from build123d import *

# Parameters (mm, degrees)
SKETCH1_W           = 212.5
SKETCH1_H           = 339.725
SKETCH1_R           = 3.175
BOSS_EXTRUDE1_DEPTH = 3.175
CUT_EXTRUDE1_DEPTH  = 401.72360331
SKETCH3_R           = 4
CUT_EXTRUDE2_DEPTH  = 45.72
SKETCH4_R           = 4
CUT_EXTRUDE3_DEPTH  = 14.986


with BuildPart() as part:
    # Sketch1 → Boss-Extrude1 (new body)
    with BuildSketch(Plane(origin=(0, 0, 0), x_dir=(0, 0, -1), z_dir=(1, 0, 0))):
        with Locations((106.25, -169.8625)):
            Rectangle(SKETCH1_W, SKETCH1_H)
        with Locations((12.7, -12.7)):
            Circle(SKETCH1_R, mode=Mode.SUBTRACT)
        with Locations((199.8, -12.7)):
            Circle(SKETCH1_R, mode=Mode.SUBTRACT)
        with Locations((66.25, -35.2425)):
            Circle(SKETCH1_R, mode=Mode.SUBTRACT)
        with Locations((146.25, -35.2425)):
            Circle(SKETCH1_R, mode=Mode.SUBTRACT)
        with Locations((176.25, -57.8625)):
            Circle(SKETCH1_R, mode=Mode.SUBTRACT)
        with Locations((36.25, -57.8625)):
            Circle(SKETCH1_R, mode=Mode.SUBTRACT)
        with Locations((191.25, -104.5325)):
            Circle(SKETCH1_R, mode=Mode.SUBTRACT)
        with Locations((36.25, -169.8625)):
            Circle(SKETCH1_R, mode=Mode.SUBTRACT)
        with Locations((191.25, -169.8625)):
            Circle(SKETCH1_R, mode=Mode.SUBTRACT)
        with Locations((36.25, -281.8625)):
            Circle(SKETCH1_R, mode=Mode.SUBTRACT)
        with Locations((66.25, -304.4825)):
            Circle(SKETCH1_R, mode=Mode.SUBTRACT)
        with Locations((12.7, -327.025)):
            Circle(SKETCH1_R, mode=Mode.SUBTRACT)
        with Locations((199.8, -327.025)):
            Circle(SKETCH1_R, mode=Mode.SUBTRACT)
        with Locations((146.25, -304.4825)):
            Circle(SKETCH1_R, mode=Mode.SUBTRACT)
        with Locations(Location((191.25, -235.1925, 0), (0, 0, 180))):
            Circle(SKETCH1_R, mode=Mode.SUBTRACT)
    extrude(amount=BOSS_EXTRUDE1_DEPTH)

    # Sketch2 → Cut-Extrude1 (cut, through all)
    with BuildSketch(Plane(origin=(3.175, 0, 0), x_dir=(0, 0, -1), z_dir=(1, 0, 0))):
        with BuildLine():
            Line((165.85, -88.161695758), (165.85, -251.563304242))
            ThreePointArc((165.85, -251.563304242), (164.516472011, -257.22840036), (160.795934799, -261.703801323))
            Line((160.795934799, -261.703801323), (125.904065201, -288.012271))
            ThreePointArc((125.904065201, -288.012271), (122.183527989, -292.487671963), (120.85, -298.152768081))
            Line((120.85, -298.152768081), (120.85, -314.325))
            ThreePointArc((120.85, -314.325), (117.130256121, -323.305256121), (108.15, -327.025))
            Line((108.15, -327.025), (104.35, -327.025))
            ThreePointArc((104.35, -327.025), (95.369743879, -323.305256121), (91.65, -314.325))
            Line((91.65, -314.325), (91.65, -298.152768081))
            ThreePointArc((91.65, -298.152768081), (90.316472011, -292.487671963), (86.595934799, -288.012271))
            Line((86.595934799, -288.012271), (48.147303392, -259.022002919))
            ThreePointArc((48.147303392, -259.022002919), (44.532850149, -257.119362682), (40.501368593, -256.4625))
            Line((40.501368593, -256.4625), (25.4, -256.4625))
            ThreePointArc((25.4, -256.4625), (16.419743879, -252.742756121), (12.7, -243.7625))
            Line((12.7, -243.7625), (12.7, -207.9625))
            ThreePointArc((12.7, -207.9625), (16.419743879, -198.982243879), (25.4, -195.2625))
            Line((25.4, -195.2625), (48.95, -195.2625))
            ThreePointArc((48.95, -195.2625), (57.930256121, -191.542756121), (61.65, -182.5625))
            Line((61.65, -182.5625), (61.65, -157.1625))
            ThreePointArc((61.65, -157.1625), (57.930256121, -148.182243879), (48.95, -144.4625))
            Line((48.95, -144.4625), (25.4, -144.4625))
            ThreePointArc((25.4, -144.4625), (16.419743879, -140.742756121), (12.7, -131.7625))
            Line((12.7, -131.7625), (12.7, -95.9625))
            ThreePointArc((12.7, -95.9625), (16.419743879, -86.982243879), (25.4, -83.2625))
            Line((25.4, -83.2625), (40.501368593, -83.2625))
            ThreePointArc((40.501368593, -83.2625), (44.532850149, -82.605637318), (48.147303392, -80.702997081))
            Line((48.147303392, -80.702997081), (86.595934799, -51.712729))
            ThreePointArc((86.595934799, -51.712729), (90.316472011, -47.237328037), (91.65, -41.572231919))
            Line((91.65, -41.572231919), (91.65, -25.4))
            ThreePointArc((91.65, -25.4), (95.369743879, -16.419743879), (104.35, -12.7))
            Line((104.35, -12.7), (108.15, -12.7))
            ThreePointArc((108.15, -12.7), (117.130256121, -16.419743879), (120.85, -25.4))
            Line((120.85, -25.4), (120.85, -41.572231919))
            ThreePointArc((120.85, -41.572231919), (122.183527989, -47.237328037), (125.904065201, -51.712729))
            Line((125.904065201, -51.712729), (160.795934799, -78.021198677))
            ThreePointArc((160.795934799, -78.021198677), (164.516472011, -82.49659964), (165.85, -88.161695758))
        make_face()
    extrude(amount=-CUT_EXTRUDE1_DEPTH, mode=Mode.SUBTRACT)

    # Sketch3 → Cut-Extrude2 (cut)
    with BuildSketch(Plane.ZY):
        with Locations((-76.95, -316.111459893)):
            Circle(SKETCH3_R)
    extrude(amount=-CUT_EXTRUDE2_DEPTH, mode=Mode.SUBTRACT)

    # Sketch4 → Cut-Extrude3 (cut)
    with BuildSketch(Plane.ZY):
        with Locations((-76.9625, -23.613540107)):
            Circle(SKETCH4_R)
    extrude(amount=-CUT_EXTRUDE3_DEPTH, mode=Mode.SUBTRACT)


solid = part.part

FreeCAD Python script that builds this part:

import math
import FreeCAD as App
import Part
import Sketcher
from FreeCAD import Vector
Q = App.Units.Quantity

doc = App.newDocument("Part")
body = doc.addObject("PartDesign::Body", "Body")

# Sketch on YZ plane
sketch1 = body.newObject("Sketcher::SketchObject", "Sketch")
sketch1.AttachmentSupport = (doc.getObject("YZ_Plane"), [""])
sketch1.MapMode = "FlatFace"
sketch1.addGeometry(Part.LineSegment(Vector(0, 0, 0), Vector(-339.725, 0, 0)), False)
sketch1.addGeometry(Part.LineSegment(Vector(-339.725, 0, 0), Vector(-339.725, -212.5, 0)), False)
sketch1.addGeometry(Part.LineSegment(Vector(-339.725, -212.5, 0), Vector(0, -212.5, 0)), False)
sketch1.addGeometry(Part.LineSegment(Vector(0, -212.5, 0), Vector(0, 0, 0)), False)
sketch1.addGeometry(Part.Circle(Vector(-327.025, -12.7, 0), Vector(0, 0, 1), 3.175), False)
sketch1.addGeometry(Part.Circle(Vector(-281.8625, -36.25, 0), Vector(0, 0, 1), 3.175), False)
sketch1.addGeometry(Part.Circle(Vector(-304.4825, -66.25, 0), Vector(0, 0, 1), 3.175), False)
sketch1.addGeometry(Part.Circle(Vector(-169.8625, -36.25, 0), Vector(0, 0, 1), 3.175), False)
sketch1.addGeometry(Part.Circle(Vector(-304.4825, -146.25, 0), Vector(0, 0, 1), 3.175), False)
sketch1.addGeometry(Part.Circle(Vector(-327.025, -199.8, 0), Vector(0, 0, 1), 3.175), False)
sketch1.addGeometry(Part.Circle(Vector(-235.1925, -191.25, 0), Vector(0, 0, 1), 3.175), False)
sketch1.addGeometry(Part.Circle(Vector(-169.8625, -191.25, 0), Vector(0, 0, 1), 3.175), False)
sketch1.addGeometry(Part.Circle(Vector(-57.8625, -36.25, 0), Vector(0, 0, 1), 3.175), False)
sketch1.addGeometry(Part.Circle(Vector(-12.7, -12.7, 0), Vector(0, 0, 1), 3.175), False)
sketch1.addGeometry(Part.Circle(Vector(-35.2425, -66.25, 0), Vector(0, 0, 1), 3.175), False)
sketch1.addGeometry(Part.Circle(Vector(-104.5325, -191.25, 0), Vector(0, 0, 1), 3.175), False)
sketch1.addGeometry(Part.Circle(Vector(-35.2425, -146.25, 0), Vector(0, 0, 1), 3.175), False)
sketch1.addGeometry(Part.Circle(Vector(-57.8625, -176.25, 0), Vector(0, 0, 1), 3.175), False)
sketch1.addGeometry(Part.Circle(Vector(-12.7, -199.8, 0), Vector(0, 0, 1), 3.175), False)
sketch1.addConstraint(Sketcher.Constraint("Coincident", 0, 2, 1, 1))
sketch1.addConstraint(Sketcher.Constraint("Coincident", 1, 2, 2, 1))
sketch1.addConstraint(Sketcher.Constraint("Coincident", 2, 2, 3, 1))
sketch1.addConstraint(Sketcher.Constraint("Coincident", 3, 2, 0, 1))
sketch1.addConstraint(Sketcher.Constraint("Horizontal", 0))
sketch1.addConstraint(Sketcher.Constraint("Vertical", 1))
sketch1.addConstraint(Sketcher.Constraint("Horizontal", 2))
sketch1.addConstraint(Sketcher.Constraint("Vertical", 3))
sketch1.addConstraint(Sketcher.Constraint("Coincident", 3, 2, -1, 1))
sketch1.addConstraint(Sketcher.Constraint("Equal", 4, 5))
sketch1.addConstraint(Sketcher.Constraint("Equal", 5, 6))
sketch1.addConstraint(Sketcher.Constraint("Equal", 6, 7))
sketch1.addConstraint(Sketcher.Constraint("Equal", 7, 8))
sketch1.addConstraint(Sketcher.Constraint("Equal", 8, 9))
sketch1.addConstraint(Sketcher.Constraint("Equal", 9, 10))
sketch1.addConstraint(Sketcher.Constraint("Equal", 10, 11))
sketch1.addConstraint(Sketcher.Constraint("Equal", 11, 12))
sketch1.addConstraint(Sketcher.Constraint("Equal", 12, 13))
sketch1.addConstraint(Sketcher.Constraint("Equal", 13, 14))
sketch1.addConstraint(Sketcher.Constraint("Equal", 14, 15))
sketch1.addConstraint(Sketcher.Constraint("Equal", 15, 16))
sketch1.addConstraint(Sketcher.Constraint("Equal", 16, 17))
sketch1.addConstraint(Sketcher.Constraint("Equal", 17, 18))
sketch1.addConstraint(Sketcher.Constraint("Horizontal", 5, 3, 7, 3))
sketch1.addConstraint(Sketcher.Constraint("Horizontal", 10, 3, 11, 3))
sketch1.addConstraint(Sketcher.Constraint("Horizontal", 7, 3, 12, 3))
sketch1.addConstraint(Sketcher.Constraint("Horizontal", 4, 3, 13, 3))
sketch1.addConstraint(Sketcher.Constraint("Horizontal", 6, 3, 14, 3))
sketch1.addConstraint(Sketcher.Constraint("Horizontal", 11, 3, 15, 3))
sketch1.addConstraint(Sketcher.Constraint("Horizontal", 8, 3, 16, 3))
sketch1.addConstraint(Sketcher.Constraint("Horizontal", 9, 3, 18, 3))
sketch1.addConstraint(Sketcher.Constraint("Vertical", 6, 3, 8, 3))
sketch1.addConstraint(Sketcher.Constraint("Vertical", 4, 3, 9, 3))
sketch1.addConstraint(Sketcher.Constraint("Vertical", 7, 3, 11, 3))
sketch1.addConstraint(Sketcher.Constraint("Vertical", 14, 3, 16, 3))
sketch1.addConstraint(Sketcher.Constraint("Vertical", 12, 3, 17, 3))
sketch1.addConstraint(Sketcher.Constraint("Vertical", 13, 3, 18, 3))
sketch1.addConstraint(Sketcher.Constraint("Diameter", 4, Q("0.25 in")))
sketch1.addConstraint(Sketcher.Constraint("DistanceY", 4, 3, -1, 1, Q("0.5 in")))
sketch1.addConstraint(Sketcher.Constraint("DistanceX", 13, 3, -1, 1, Q("0.5 in")))
sketch1.addConstraint(Sketcher.Constraint("DistanceX", 6, 3, 7, 3, Q("5.3 in")))
sketch1.addConstraint(Sketcher.Constraint("DistanceX", 7, 3, 14, 3, Q("5.3 in")))
sketch1.addConstraint(Sketcher.Constraint("DistanceX", 0, 2, 4, 3, Q("0.5 in")))
sketch1.addConstraint(Sketcher.Constraint("DistanceY", 1, 2, 9, 3, Q("0.5 in")))
sketch1.addConstraint(Sketcher.Constraint("DistanceX", 0, 2, 0, 1, Q("13.375 in")))
sketch1.addConstraint(Sketcher.Constraint("DistanceX", 7, 3, -1, 1, Q("6.6875 in")))
sketch1.addConstraint(Sketcher.Constraint("DistanceY", 1, 2, 1, 1, 212.5))
sketch1.addConstraint(Sketcher.Constraint("DistanceX", 5, 3, -1, 1, 281.8625))
sketch1.addConstraint(Sketcher.Constraint("DistanceY", 5, 3, -1, 1, 36.25))
sketch1.addConstraint(Sketcher.Constraint("DistanceY", 6, 3, -1, 1, 66.25))
sketch1.addConstraint(Sketcher.Constraint("DistanceY", 8, 3, -1, 1, 146.25))
sketch1.addConstraint(Sketcher.Constraint("DistanceX", 10, 3, -1, 1, 235.1925))
sketch1.addConstraint(Sketcher.Constraint("DistanceY", 10, 3, -1, 1, 191.25))
sketch1.addConstraint(Sketcher.Constraint("DistanceX", 12, 3, -1, 1, 57.8625))
sketch1.addConstraint(Sketcher.Constraint("DistanceX", 15, 3, -1, 1, 104.5325))
sketch1.addConstraint(Sketcher.Constraint("DistanceY", 17, 3, -1, 1, 176.25))
pad1 = body.newObject("PartDesign::Pad", "Pad")
pad1.Profile = sketch1
pad1.Length = Q("0.125 in")

# Sketch on YZ plane
sketch2 = body.newObject("Sketcher::SketchObject", "Sketch001")
sketch2.AttachmentSupport = (doc.getObject("YZ_Plane"), [""])
sketch2.MapMode = "FlatFace"
sketch2.AttachmentOffset = App.Placement(Vector(0, 0, 0.125 * 25.4), App.Rotation())
sketch2.addGeometry(Part.LineSegment(Vector(-251.563304, -165.85, 0), Vector(-88.161696, -165.85, 0)), False)
sketch2.addGeometry(Part.ArcOfCircle(Part.Circle(Vector(-88.161696, -153.15, 0), Vector(0, 0, 1), 12.7), math.radians(-90), math.radians(-37.016293)), False)
sketch2.addGeometry(Part.LineSegment(Vector(-78.021199, -160.795935, 0), Vector(-51.712729, -125.904065, 0)), False)
sketch2.addGeometry(Part.ArcOfCircle(Part.Circle(Vector(-41.572232, -133.55, 0), Vector(0, 0, 1), 12.7), math.radians(90), math.radians(142.983707)), False)
sketch2.addGeometry(Part.LineSegment(Vector(-41.572232, -120.85, 0), Vector(-25.4, -120.85, 0)), False)
sketch2.addGeometry(Part.ArcOfCircle(Part.Circle(Vector(-25.4, -108.15, 0), Vector(0, 0, 1), 12.7), math.radians(-90), math.radians(0)), False)
sketch2.addGeometry(Part.LineSegment(Vector(-12.7, -108.15, 0), Vector(-12.7, -104.35, 0)), False)
sketch2.addGeometry(Part.ArcOfCircle(Part.Circle(Vector(-25.4, -104.35, 0), Vector(0, 0, 1), 12.7), math.radians(0), math.radians(90)), False)
sketch2.addGeometry(Part.LineSegment(Vector(-25.4, -91.65, 0), Vector(-41.572232, -91.65, 0)), False)
sketch2.addGeometry(Part.ArcOfCircle(Part.Circle(Vector(-41.572232, -78.95, 0), Vector(0, 0, 1), 12.7), math.radians(-142.983707), math.radians(-90)), False)
sketch2.addGeometry(Part.LineSegment(Vector(-51.712729, -86.595935, 0), Vector(-80.702997, -48.147303, 0)), False)
sketch2.addGeometry(Part.ArcOfCircle(Part.Circle(Vector(-70.5625, -40.501369, 0), Vector(0, 0, 1), 12.7), math.radians(-180), math.radians(-142.983707)), False)
sketch2.addGeometry(Part.LineSegment(Vector(-83.2625, -40.501369, 0), Vector(-83.2625, -25.4, 0)), False)
sketch2.addGeometry(Part.ArcOfCircle(Part.Circle(Vector(-95.9625, -25.4, 0), Vector(0, 0, 1), 12.7), math.radians(0), math.radians(90)), False)
sketch2.addGeometry(Part.LineSegment(Vector(-95.9625, -12.7, 0), Vector(-131.7625, -12.7, 0)), False)
sketch2.addGeometry(Part.ArcOfCircle(Part.Circle(Vector(-131.7625, -25.4, 0), Vector(0, 0, 1), 12.7), math.radians(90), math.radians(180)), False)
sketch2.addGeometry(Part.LineSegment(Vector(-144.4625, -25.4, 0), Vector(-144.4625, -48.95, 0)), False)
sketch2.addGeometry(Part.ArcOfCircle(Part.Circle(Vector(-157.1625, -48.95, 0), Vector(0, 0, 1), 12.7), math.radians(-90), math.radians(0)), False)
sketch2.addGeometry(Part.LineSegment(Vector(-157.1625, -61.65, 0), Vector(-182.5625, -61.65, 0)), False)
sketch2.addGeometry(Part.ArcOfCircle(Part.Circle(Vector(-182.5625, -48.95, 0), Vector(0, 0, 1), 12.7), math.radians(180), math.radians(270)), False)
sketch2.addGeometry(Part.LineSegment(Vector(-195.2625, -48.95, 0), Vector(-195.2625, -25.4, 0)), False)
sketch2.addGeometry(Part.ArcOfCircle(Part.Circle(Vector(-207.9625, -25.4, 0), Vector(0, 0, 1), 12.7), math.radians(0), math.radians(90)), False)
sketch2.addGeometry(Part.LineSegment(Vector(-207.9625, -12.7, 0), Vector(-243.7625, -12.7, 0)), False)
sketch2.addGeometry(Part.ArcOfCircle(Part.Circle(Vector(-243.7625, -25.4, 0), Vector(0, 0, 1), 12.7), math.radians(90), math.radians(180)), False)
sketch2.addGeometry(Part.LineSegment(Vector(-256.4625, -25.4, 0), Vector(-256.4625, -40.501369, 0)), False)
sketch2.addGeometry(Part.ArcOfCircle(Part.Circle(Vector(-269.1625, -40.501369, 0), Vector(0, 0, 1), 12.7), math.radians(-37.016293), math.radians(0)), False)
sketch2.addGeometry(Part.LineSegment(Vector(-259.022003, -48.147303, 0), Vector(-288.012271, -86.595935, 0)), False)
sketch2.addGeometry(Part.ArcOfCircle(Part.Circle(Vector(-298.152768, -78.95, 0), Vector(0, 0, 1), 12.7), math.radians(-90), math.radians(-37.016293)), False)
sketch2.addGeometry(Part.LineSegment(Vector(-298.152768, -91.65, 0), Vector(-314.325, -91.65, 0)), False)
sketch2.addGeometry(Part.ArcOfCircle(Part.Circle(Vector(-314.325, -104.35, 0), Vector(0, 0, 1), 12.7), math.radians(90), math.radians(180)), False)
sketch2.addGeometry(Part.LineSegment(Vector(-327.025, -104.35, 0), Vector(-327.025, -108.15, 0)), False)
sketch2.addGeometry(Part.ArcOfCircle(Part.Circle(Vector(-314.325, -108.15, 0), Vector(0, 0, 1), 12.7), math.radians(180), math.radians(270)), False)
sketch2.addGeometry(Part.LineSegment(Vector(-314.325, -120.85, 0), Vector(-298.152768, -120.85, 0)), False)
sketch2.addGeometry(Part.ArcOfCircle(Part.Circle(Vector(-298.152768, -133.55, 0), Vector(0, 0, 1), 12.7), math.radians(37.016293), math.radians(90)), False)
sketch2.addGeometry(Part.LineSegment(Vector(-288.012271, -125.904065, 0), Vector(-261.703801, -160.795935, 0)), False)
sketch2.addGeometry(Part.ArcOfCircle(Part.Circle(Vector(-251.563304, -153.15, 0), Vector(0, 0, 1), 12.7), math.radians(-142.983707), math.radians(-90)), False)
sketch2.addConstraint(Sketcher.Constraint("Tangent", 0, 2, 1, 1))
sketch2.addConstraint(Sketcher.Constraint("Tangent", 1, 2, 2, 1))
sketch2.addConstraint(Sketcher.Constraint("Tangent", 2, 2, 3, 2))
sketch2.addConstraint(Sketcher.Constraint("Tangent", 3, 1, 4, 1))
sketch2.addConstraint(Sketcher.Constraint("Tangent", 4, 2, 5, 1))
sketch2.addConstraint(Sketcher.Constraint("Tangent", 5, 2, 6, 1))
sketch2.addConstraint(Sketcher.Constraint("Tangent", 6, 2, 7, 1))
sketch2.addConstraint(Sketcher.Constraint("Tangent", 7, 2, 8, 1))
sketch2.addConstraint(Sketcher.Constraint("Tangent", 8, 2, 9, 2))
sketch2.addConstraint(Sketcher.Constraint("Tangent", 9, 1, 10, 1))
sketch2.addConstraint(Sketcher.Constraint("Tangent", 10, 2, 11, 2))
sketch2.addConstraint(Sketcher.Constraint("Tangent", 11, 1, 12, 1))
sketch2.addConstraint(Sketcher.Constraint("Tangent", 12, 2, 13, 1))
sketch2.addConstraint(Sketcher.Constraint("Tangent", 13, 2, 14, 1))
sketch2.addConstraint(Sketcher.Constraint("Tangent", 14, 2, 15, 1))
sketch2.addConstraint(Sketcher.Constraint("Tangent", 15, 2, 16, 1))
sketch2.addConstraint(Sketcher.Constraint("Tangent", 16, 2, 17, 2))
sketch2.addConstraint(Sketcher.Constraint("Tangent", 17, 1, 18, 1))
sketch2.addConstraint(Sketcher.Constraint("Tangent", 18, 2, 19, 2))
sketch2.addConstraint(Sketcher.Constraint("Tangent", 19, 1, 20, 1))
sketch2.addConstraint(Sketcher.Constraint("Tangent", 20, 2, 21, 1))
sketch2.addConstraint(Sketcher.Constraint("Tangent", 21, 2, 22, 1))
sketch2.addConstraint(Sketcher.Constraint("Tangent", 22, 2, 23, 1))
sketch2.addConstraint(Sketcher.Constraint("Tangent", 23, 2, 24, 1))
sketch2.addConstraint(Sketcher.Constraint("Tangent", 24, 2, 25, 2))
sketch2.addConstraint(Sketcher.Constraint("Tangent", 25, 1, 26, 1))
sketch2.addConstraint(Sketcher.Constraint("Tangent", 26, 2, 27, 2))
sketch2.addConstraint(Sketcher.Constraint("Tangent", 27, 1, 28, 1))
sketch2.addConstraint(Sketcher.Constraint("Tangent", 28, 2, 29, 1))
sketch2.addConstraint(Sketcher.Constraint("Tangent", 29, 2, 30, 1))
sketch2.addConstraint(Sketcher.Constraint("Tangent", 30, 2, 31, 1))
sketch2.addConstraint(Sketcher.Constraint("Tangent", 31, 2, 32, 1))
sketch2.addConstraint(Sketcher.Constraint("Tangent", 32, 2, 33, 2))
sketch2.addConstraint(Sketcher.Constraint("Tangent", 33, 1, 34, 1))
sketch2.addConstraint(Sketcher.Constraint("Tangent", 34, 2, 35, 1))
sketch2.addConstraint(Sketcher.Constraint("Tangent", 35, 2, 0, 1))
sketch2.addConstraint(Sketcher.Constraint("Horizontal", 0))
sketch2.addConstraint(Sketcher.Constraint("Horizontal", 4))
sketch2.addConstraint(Sketcher.Constraint("Vertical", 6))
sketch2.addConstraint(Sketcher.Constraint("Horizontal", 8))
sketch2.addConstraint(Sketcher.Constraint("Vertical", 12))
sketch2.addConstraint(Sketcher.Constraint("Horizontal", 14))
sketch2.addConstraint(Sketcher.Constraint("Vertical", 16))
sketch2.addConstraint(Sketcher.Constraint("Horizontal", 18))
sketch2.addConstraint(Sketcher.Constraint("Vertical", 20))
sketch2.addConstraint(Sketcher.Constraint("Horizontal", 22))
sketch2.addConstraint(Sketcher.Constraint("Vertical", 24))
sketch2.addConstraint(Sketcher.Constraint("Horizontal", 28))
sketch2.addConstraint(Sketcher.Constraint("Vertical", 30))
sketch2.addConstraint(Sketcher.Constraint("Horizontal", 32))
sketch2.addConstraint(Sketcher.Constraint("Equal", 1, 3))
sketch2.addConstraint(Sketcher.Constraint("Equal", 3, 5))
sketch2.addConstraint(Sketcher.Constraint("Equal", 5, 7))
sketch2.addConstraint(Sketcher.Constraint("Equal", 7, 9))
sketch2.addConstraint(Sketcher.Constraint("Equal", 9, 11))
sketch2.addConstraint(Sketcher.Constraint("Equal", 11, 13))
sketch2.addConstraint(Sketcher.Constraint("Equal", 13, 15))
sketch2.addConstraint(Sketcher.Constraint("Equal", 15, 17))
sketch2.addConstraint(Sketcher.Constraint("Equal", 17, 19))
sketch2.addConstraint(Sketcher.Constraint("Equal", 19, 21))
sketch2.addConstraint(Sketcher.Constraint("Equal", 21, 23))
sketch2.addConstraint(Sketcher.Constraint("Equal", 23, 25))
sketch2.addConstraint(Sketcher.Constraint("Equal", 25, 27))
sketch2.addConstraint(Sketcher.Constraint("Equal", 27, 29))
sketch2.addConstraint(Sketcher.Constraint("Equal", 29, 31))
sketch2.addConstraint(Sketcher.Constraint("Equal", 31, 33))
sketch2.addConstraint(Sketcher.Constraint("Equal", 33, 35))
sketch2.addConstraint(Sketcher.Constraint("Parallel", 2, 26))
sketch2.addConstraint(Sketcher.Constraint("Parallel", 10, 34))
sketch2.addConstraint(Sketcher.Constraint("Horizontal", 15, 3, 21, 3))
sketch2.addConstraint(Sketcher.Constraint("Horizontal", 11, 3, 25, 3))
sketch2.addConstraint(Sketcher.Constraint("Horizontal", 9, 3, 27, 3))
sketch2.addConstraint(Sketcher.Constraint("Horizontal", 5, 3, 31, 3))
sketch2.addConstraint(Sketcher.Constraint("Horizontal", 10, 2, 25, 1))
sketch2.addConstraint(Sketcher.Constraint("Vertical", 3, 3, 9, 3))
sketch2.addConstraint(Sketcher.Constraint("Vertical", 27, 3, 33, 3))
sketch2.addConstraint(Sketcher.Constraint("Equal", 14, 22))
sketch2.addConstraint(Sketcher.Constraint("Equal", 8, 28))
sketch2.addConstraint(Sketcher.Constraint("Radius", 1, Q("0.5 in")))
sketch2.addConstraint(Sketcher.Constraint("DistanceX", 18, 2, 18, 1, Q("1 in")))
sketch2.addConstraint(Sketcher.Constraint("DistanceX", 5, 3, -1, 1, Q("1 in")))
sketch2.addConstraint(Sketcher.Constraint("DistanceY", 13, 3, -1, 1, Q("1 in")))
sketch2.addConstraint(Sketcher.Constraint("DistanceX", 15, 3, -1, 1, Q("5.1875 in")))
sketch2.addConstraint(Sketcher.Constraint("DistanceX", 14, 2, 14, 1, 35.8))
sketch2.addConstraint(Sketcher.Constraint("DistanceY", 6, 1, 6, 2, 3.8))
sketch2.addConstraint(Sketcher.Constraint("DistanceY", 16, 2, 16, 1, 23.55))
sketch2.addConstraint(Sketcher.Constraint("DistanceX", 0, 1, 0, 2, 163.401608))
sketch2.addConstraint(Sketcher.Constraint("DistanceX", 4, 1, 4, 2, 16.172232))
sketch2.addConstraint(Sketcher.Constraint("DistanceY", 12, 1, 12, 2, 15.101369))
sketch2.addConstraint(Sketcher.Constraint("DistanceY", 1, 3, -1, 1, 153.15))
pocket1 = body.newObject("PartDesign::Pocket", "Pocket")
pocket1.Profile = sketch2
pocket1.Type = "ThroughAll"

# Sketch on YZ plane
sketch3 = body.newObject("Sketcher::SketchObject", "Sketch002")
sketch3.AttachmentSupport = (doc.getObject("YZ_Plane"), [""])
sketch3.MapMode = "FlatFace"
sketch3.addGeometry(Part.Circle(Vector(-316.11146, -76.95, 0), Vector(0, 0, 1), 4), False)
sketch3.addConstraint(Sketcher.Constraint("Diameter", 0, 8.0))
sketch3.addConstraint(Sketcher.Constraint("DistanceY", 0, 3, -1, 1, 76.95))
sketch3.addConstraint(Sketcher.Constraint("DistanceX", 0, 3, -1, 1, 316.11146))
pocket2 = body.newObject("PartDesign::Pocket", "Pocket001")
pocket2.Profile = sketch3
pocket2.Length = Q("1.8 in")
pocket2.Reversed = True

# Sketch on YZ plane
sketch4 = body.newObject("Sketcher::SketchObject", "Sketch003")
sketch4.AttachmentSupport = (doc.getObject("YZ_Plane"), [""])
sketch4.MapMode = "FlatFace"
sketch4.addGeometry(Part.Circle(Vector(-23.61354, -76.9625, 0), Vector(0, 0, 1), 4), False)
sketch4.addConstraint(Sketcher.Constraint("Diameter", 0, 8.0))
sketch4.addConstraint(Sketcher.Constraint("DistanceY", 0, 3, -1, 1, 76.9625))
sketch4.addConstraint(Sketcher.Constraint("DistanceX", 0, 3, -1, 1, 23.61354))
pocket3 = body.newObject("PartDesign::Pocket", "Pocket002")
pocket3.Profile = sketch4
pocket3.Length = Q("0.59 in")
pocket3.Reversed = True

doc.recompute()
